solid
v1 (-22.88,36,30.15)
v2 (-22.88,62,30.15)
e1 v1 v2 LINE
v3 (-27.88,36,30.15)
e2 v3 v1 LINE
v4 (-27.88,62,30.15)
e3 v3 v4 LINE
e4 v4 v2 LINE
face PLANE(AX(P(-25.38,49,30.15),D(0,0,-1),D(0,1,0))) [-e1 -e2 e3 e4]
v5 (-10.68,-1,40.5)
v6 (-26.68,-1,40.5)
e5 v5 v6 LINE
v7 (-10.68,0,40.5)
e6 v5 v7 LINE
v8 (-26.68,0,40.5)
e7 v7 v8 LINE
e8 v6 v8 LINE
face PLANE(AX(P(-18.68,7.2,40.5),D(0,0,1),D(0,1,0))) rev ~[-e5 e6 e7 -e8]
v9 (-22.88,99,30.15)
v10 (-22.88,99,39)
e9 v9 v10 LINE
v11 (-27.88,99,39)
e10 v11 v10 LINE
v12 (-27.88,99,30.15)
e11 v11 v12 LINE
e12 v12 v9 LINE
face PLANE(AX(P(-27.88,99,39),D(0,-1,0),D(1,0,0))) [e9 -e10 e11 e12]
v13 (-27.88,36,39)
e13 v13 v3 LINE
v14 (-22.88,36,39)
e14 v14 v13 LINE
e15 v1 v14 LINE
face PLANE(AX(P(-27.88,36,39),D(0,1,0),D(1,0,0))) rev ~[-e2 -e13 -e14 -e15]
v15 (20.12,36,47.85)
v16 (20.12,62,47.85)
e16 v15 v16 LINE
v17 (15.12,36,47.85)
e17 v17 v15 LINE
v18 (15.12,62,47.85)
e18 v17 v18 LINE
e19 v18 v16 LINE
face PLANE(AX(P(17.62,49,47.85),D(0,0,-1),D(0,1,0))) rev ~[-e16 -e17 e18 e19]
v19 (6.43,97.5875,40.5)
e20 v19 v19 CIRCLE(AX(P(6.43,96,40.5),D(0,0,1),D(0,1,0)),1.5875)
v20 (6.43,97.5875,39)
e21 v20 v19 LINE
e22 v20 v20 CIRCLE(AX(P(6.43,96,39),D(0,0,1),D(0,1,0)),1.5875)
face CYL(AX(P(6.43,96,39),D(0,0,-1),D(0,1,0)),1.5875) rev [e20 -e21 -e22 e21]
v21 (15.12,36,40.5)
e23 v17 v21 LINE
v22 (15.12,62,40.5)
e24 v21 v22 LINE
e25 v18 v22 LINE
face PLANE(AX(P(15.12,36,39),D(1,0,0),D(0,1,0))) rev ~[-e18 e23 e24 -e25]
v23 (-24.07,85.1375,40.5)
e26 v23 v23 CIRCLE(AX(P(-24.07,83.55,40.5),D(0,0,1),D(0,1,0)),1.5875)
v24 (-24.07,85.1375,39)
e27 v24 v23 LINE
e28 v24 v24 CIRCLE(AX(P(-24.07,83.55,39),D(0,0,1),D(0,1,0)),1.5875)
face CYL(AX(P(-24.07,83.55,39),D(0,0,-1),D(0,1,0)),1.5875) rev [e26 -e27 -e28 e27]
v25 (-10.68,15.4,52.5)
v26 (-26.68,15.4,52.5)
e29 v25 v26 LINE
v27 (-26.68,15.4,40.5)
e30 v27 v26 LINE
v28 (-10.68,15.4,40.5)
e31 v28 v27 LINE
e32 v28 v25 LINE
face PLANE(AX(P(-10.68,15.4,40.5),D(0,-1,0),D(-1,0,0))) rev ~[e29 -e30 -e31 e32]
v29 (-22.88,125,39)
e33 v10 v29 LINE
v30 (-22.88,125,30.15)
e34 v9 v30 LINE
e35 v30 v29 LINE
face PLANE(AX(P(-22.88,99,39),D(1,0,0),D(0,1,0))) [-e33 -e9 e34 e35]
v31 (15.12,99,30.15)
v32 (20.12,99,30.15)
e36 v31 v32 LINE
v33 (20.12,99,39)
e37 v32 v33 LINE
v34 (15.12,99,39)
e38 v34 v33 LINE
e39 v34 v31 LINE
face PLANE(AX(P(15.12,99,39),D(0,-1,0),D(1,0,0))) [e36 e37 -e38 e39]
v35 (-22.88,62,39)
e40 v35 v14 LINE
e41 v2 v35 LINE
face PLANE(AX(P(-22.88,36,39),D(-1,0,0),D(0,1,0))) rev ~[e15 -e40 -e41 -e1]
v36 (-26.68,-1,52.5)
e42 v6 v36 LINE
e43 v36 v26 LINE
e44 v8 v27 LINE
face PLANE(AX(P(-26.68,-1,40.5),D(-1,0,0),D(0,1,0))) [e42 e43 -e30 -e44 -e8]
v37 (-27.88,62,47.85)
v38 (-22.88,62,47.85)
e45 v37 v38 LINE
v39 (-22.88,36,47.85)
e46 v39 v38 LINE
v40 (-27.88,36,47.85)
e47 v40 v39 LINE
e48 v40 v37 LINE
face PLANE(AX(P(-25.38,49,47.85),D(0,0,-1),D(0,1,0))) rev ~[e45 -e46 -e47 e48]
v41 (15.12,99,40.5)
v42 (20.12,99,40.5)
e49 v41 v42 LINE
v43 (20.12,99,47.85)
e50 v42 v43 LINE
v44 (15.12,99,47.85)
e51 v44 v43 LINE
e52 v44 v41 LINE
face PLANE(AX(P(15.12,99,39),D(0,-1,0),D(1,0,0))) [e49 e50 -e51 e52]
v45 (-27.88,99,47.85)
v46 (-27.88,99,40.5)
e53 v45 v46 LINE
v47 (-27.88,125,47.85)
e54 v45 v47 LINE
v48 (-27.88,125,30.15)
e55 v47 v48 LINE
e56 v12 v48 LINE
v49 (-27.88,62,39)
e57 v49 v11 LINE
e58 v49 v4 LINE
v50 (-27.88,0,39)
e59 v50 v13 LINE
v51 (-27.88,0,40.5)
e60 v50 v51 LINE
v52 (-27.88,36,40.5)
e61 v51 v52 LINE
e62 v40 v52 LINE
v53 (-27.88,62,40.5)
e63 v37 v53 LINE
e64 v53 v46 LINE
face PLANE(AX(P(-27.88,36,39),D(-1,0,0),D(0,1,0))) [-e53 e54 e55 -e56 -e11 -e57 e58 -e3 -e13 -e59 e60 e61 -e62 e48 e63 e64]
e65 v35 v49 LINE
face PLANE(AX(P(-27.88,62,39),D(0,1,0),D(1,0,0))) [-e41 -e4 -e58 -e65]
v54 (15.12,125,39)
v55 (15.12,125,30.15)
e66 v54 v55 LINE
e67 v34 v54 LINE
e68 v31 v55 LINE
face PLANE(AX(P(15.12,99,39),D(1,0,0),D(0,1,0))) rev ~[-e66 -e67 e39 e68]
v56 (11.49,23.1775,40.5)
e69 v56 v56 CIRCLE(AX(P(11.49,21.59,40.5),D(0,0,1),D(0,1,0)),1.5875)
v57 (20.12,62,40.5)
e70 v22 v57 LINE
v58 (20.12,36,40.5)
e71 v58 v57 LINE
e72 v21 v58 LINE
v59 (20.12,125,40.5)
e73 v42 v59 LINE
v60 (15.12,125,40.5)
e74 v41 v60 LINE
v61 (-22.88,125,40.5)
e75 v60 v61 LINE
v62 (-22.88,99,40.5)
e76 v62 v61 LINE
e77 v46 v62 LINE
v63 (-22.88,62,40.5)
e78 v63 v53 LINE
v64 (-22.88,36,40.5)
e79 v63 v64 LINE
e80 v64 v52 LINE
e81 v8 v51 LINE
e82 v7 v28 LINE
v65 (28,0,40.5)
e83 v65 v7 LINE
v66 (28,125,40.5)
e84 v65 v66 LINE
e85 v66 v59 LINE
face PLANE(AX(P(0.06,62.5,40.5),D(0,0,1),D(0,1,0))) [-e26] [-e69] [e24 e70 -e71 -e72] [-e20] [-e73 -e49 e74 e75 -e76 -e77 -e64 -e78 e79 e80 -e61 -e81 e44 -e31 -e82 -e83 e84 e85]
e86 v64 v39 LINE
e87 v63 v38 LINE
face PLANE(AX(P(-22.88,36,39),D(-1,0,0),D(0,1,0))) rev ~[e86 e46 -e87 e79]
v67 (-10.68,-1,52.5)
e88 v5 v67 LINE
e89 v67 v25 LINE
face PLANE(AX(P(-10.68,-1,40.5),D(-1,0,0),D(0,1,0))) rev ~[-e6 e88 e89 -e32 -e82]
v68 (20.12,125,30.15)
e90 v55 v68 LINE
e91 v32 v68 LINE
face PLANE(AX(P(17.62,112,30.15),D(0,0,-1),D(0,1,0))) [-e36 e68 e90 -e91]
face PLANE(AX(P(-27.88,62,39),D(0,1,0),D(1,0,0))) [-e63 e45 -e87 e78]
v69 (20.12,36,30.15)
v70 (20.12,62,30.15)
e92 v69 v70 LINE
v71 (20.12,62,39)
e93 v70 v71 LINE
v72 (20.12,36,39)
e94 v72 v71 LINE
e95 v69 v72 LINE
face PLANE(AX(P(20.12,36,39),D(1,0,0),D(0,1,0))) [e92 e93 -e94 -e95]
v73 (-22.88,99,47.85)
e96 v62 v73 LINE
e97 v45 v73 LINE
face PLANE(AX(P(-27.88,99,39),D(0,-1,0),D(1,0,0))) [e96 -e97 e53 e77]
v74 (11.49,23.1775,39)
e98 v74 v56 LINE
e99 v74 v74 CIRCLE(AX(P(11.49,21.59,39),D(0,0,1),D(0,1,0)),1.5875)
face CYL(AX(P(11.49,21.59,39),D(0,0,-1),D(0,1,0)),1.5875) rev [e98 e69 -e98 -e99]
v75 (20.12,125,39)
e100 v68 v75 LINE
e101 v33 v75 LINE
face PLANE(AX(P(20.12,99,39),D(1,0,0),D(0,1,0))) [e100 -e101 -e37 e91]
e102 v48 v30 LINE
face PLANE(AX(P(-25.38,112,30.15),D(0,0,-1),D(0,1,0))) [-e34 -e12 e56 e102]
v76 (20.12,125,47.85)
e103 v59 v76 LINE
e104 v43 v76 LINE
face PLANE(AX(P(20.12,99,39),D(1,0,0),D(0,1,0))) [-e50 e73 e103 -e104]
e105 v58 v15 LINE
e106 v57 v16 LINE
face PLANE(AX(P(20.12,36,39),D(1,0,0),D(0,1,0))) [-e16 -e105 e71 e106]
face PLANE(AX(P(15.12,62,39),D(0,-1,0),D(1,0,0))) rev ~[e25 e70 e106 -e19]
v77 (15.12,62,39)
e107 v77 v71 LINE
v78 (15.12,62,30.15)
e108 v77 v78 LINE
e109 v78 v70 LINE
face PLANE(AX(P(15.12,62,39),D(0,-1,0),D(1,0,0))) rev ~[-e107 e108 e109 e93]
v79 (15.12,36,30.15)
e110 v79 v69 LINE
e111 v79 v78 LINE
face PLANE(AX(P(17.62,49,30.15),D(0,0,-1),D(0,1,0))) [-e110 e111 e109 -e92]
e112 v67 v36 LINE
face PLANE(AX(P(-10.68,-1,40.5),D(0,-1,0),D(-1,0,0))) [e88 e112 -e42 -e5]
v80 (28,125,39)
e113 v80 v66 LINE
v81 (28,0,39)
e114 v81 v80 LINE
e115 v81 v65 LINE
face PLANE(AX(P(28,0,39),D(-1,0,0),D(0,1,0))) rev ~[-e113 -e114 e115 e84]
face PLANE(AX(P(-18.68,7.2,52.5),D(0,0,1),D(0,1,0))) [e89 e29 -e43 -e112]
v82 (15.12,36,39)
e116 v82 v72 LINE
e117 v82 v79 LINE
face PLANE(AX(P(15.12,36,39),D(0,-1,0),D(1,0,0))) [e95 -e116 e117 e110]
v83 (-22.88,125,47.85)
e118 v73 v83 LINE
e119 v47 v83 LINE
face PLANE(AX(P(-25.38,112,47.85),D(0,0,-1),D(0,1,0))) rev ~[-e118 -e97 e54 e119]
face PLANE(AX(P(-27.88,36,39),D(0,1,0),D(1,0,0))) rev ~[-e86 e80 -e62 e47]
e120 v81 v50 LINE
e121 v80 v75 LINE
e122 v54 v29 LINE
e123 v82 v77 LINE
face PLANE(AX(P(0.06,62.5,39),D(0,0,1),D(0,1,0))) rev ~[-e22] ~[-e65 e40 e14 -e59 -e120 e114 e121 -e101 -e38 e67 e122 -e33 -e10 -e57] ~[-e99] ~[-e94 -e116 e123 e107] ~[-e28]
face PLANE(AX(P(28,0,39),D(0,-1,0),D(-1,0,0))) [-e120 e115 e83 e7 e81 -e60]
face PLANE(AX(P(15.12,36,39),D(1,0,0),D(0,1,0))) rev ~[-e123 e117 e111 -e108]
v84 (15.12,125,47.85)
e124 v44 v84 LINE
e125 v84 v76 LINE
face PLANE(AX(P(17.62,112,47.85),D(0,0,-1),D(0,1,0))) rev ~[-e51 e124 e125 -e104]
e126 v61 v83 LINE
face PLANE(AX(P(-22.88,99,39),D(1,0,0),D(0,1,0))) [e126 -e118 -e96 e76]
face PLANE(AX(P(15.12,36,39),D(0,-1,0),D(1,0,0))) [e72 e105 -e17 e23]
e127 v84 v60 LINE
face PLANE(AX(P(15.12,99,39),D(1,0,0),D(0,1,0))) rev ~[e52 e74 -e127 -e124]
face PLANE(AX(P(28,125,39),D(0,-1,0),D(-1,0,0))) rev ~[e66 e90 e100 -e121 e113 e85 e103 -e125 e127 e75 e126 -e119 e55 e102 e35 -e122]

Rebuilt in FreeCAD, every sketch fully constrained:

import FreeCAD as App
import Part
import Sketcher

V = App.Vector
Q = App.Units.Quantity

doc = App.newDocument("Part")
body = doc.addObject("PartDesign::Body", "Body")

# Sketch on XY plane
sketch1 = doc.addObject("Sketcher::SketchObject", "Sketch")
body.addObject(sketch1)
sketch1.AttachmentSupport = (doc.XY_Plane, [""])
sketch1.MapMode = "FlatFace"
sketch1.addGeometry([
    Part.LineSegment(V(0, 55.9, 0), V(0, 0, 0)),  # 0
    Part.LineSegment(V(0, 0, 0), V(125, 0, 0)),  # 1
    Part.LineSegment(V(125, 0, 0), V(125, 55.9, 0)),  # 2
    Part.LineSegment(V(125, 55.9, 0), V(0, 55.9, 0)),  # 3
    Part.Circle(V(21.6, 16.5, 0), V(0, 0, 1), 1.6),  # 4
    Part.Circle(V(96, 21.6, 0), V(0, 0, 1), 1.6),  # 5
    Part.Circle(V(83.5, 52.1, 0), V(0, 0, 1), 1.6),  # 6
], False)
sketch1.addConstraint([
    Sketcher.Constraint("Coincident", 0, 2, 1, 1),
    Sketcher.Constraint("Coincident", 1, 2, 2, 1),
    Sketcher.Constraint("Coincident", 2, 2, 3, 1),
    Sketcher.Constraint("Coincident", 3, 2, 0, 1),
    Sketcher.Constraint("Vertical", 0),
    Sketcher.Constraint("Horizontal", 1),
    Sketcher.Constraint("Vertical", 2),
    Sketcher.Constraint("Horizontal", 3),
    Sketcher.Constraint("Coincident", 0, 2, -1, 1),
    Sketcher.Constraint("Equal", 4, 5),
    Sketcher.Constraint("Equal", 5, 6),
    Sketcher.Constraint("DistanceX", 1, 1, 1, 2, Q("125 mm")),
    Sketcher.Constraint("Diameter", 4, Q("3.175 mm")),
    Sketcher.Constraint("DistanceX", -1, 1, 5, 3, Q("96 mm")),
    Sketcher.Constraint("DistanceY", 0, 2, 0, 1, Q("55.88 mm")),
    Sketcher.Constraint("DistanceY", 5, 3, 6, 3, Q("30.5 mm")),
    Sketcher.Constraint("DistanceX", -1, 1, 4, 3, Q("21.59 mm")),
    Sketcher.Constraint("DistanceY", -1, 1, 4, 3, Q("16.51 mm")),
    Sketcher.Constraint("DistanceY", -1, 1, 5, 3, Q("21.57 mm")),
    Sketcher.Constraint("DistanceX", -1, 1, 6, 3, Q("83.55 mm")),
])
pad1 = doc.addObject("PartDesign::Pad", "Pad")
body.addObject(pad1)
pad1.Profile = sketch1
pad1.Length = 1.5

# Sketch on XY plane
sketch2 = doc.addObject("Sketcher::SketchObject", "Sketch001")
body.addObject(sketch2)
sketch2.AttachmentSupport = (doc.XY_Plane, [""])
sketch2.MapMode = "FlatFace"
sketch2.addGeometry([
    Part.LineSegment(V(36, 8, 0), V(36, 13, 0)),  # 0
    Part.LineSegment(V(36, 13, 0), V(62, 13, 0)),  # 1
    Part.LineSegment(V(62, 13, 0), V(62, 8, 0)),  # 2
    Part.LineSegment(V(62, 8, 0), V(36, 8, 0)),  # 3
    Part.LineSegment(V(99, 8, 0), V(99, 13, 0)),  # 4
    Part.LineSegment(V(99, 13, 0), V(125, 13, 0)),  # 5
    Part.LineSegment(V(125, 13, 0), V(125, 8, 0)),  # 6
    Part.LineSegment(V(125, 8, 0), V(99, 8, 0)),  # 7
    Part.LineSegment(V(99, 51, 0), V(99, 56, 0)),  # 8
    Part.LineSegment(V(99, 56, 0), V(125, 56, 0)),  # 9
    Part.LineSegment(V(125, 56, 0), V(125, 51, 0)),  # 10
    Part.LineSegment(V(125, 51, 0), V(99, 51, 0)),  # 11
    Part.LineSegment(V(36, 51, 0), V(36, 56, 0)),  # 12
    Part.LineSegment(V(36, 56, 0), V(62, 56, 0)),  # 13
    Part.LineSegment(V(62, 56, 0), V(62, 51, 0)),  # 14
    Part.LineSegment(V(62, 51, 0), V(36, 51, 0)),  # 15
], False)
sketch2.addConstraint([
    Sketcher.Constraint("Coincident", 0, 2, 1, 1),
    Sketcher.Constraint("Coincident", 1, 2, 2, 1),
    Sketcher.Constraint("Coincident", 2, 2, 3, 1),
    Sketcher.Constraint("Coincident", 3, 2, 0, 1),
    Sketcher.Constraint("Coincident", 4, 2, 5, 1),
    Sketcher.Constraint("Coincident", 5, 2, 6, 1),
    Sketcher.Constraint("Coincident", 6, 2, 7, 1),
    Sketcher.Constraint("Coincident", 7, 2, 4, 1),
    Sketcher.Constraint("Coincident", 8, 2, 9, 1),
    Sketcher.Constraint("Coincident", 9, 2, 10, 1),
    Sketcher.Constraint("Coincident", 10, 2, 11, 1),
    Sketcher.Constraint("Coincident", 11, 2, 8, 1),
    Sketcher.Constraint("Coincident", 12, 2, 13, 1),
    Sketcher.Constraint("Coincident", 13, 2, 14, 1),
    Sketcher.Constraint("Coincident", 14, 2, 15, 1),
    Sketcher.Constraint("Coincident", 15, 2, 12, 1),
    Sketcher.Constraint("Vertical", 0),
    Sketcher.Constraint("Horizontal", 1),
    Sketcher.Constraint("Vertical", 2),
    Sketcher.Constraint("Horizontal", 3),
    Sketcher.Constraint("Vertical", 4),
    Sketcher.Constraint("Horizontal", 5),
    Sketcher.Constraint("Vertical", 6),
    Sketcher.Constraint("Horizontal", 7),
    Sketcher.Constraint("Vertical", 8),
    Sketcher.Constraint("Horizontal", 9),
    Sketcher.Constraint("Vertical", 10),
    Sketcher.Constraint("Horizontal", 11),
    Sketcher.Constraint("Vertical", 12),
    Sketcher.Constraint("Horizontal", 13),
    Sketcher.Constraint("Vertical", 14),
    Sketcher.Constraint("Horizontal", 15),
    Sketcher.Constraint("Horizontal", 1, 2, 4, 2),
    Sketcher.Constraint("Horizontal", 3, 2, 6, 2),
    Sketcher.Constraint("Horizontal", 9, 2, 12, 2),
    Sketcher.Constraint("Horizontal", 11, 2, 14, 2),
    Sketcher.Constraint("Vertical", 7, 2, 8, 2),
    Sketcher.Constraint("Vertical", 6, 2, 9, 2),
    Sketcher.Constraint("Vertical", 3, 2, 12, 2),
    Sketcher.Constraint("Vertical", 2, 2, 13, 2),
    Sketcher.Constraint("Equal", 3, 5),
    Sketcher.Constraint("Equal", 6, 8),
    Sketcher.Constraint("DistanceX", 1, 1, 1, 2, Q("26 mm")),
    Sketcher.Constraint("DistanceY", 0, 1, 0, 2, Q("5 mm")),
    Sketcher.Constraint("DistanceX", -1, 1, 0, 2, Q("36 mm")),
    Sketcher.Constraint("DistanceX", -1, 1, 4, 2, Q("99 mm")),
    Sketcher.Constraint("DistanceY", 4, 2, 8, 2, Q("43 mm")),
    Sketcher.Constraint("DistanceY", -1, 1, 0, 2, Q("12.88 mm")),
])
pad2 = doc.addObject("PartDesign::Pad", "Pad001")
body.addObject(pad2)
pad2.Profile = sketch2
pad2.Length = 17.7
pad2.Midplane = True

# Sketch on XY plane
sketch3 = doc.addObject("Sketcher::SketchObject", "Sketch002")
body.addObject(sketch3)
sketch3.AttachmentSupport = (doc.XY_Plane, [""])
sketch3.MapMode = "FlatFace"
sketch3.AttachmentOffset = App.Placement(V(0, 0, 1.5), App.Rotation())
sketch3.addGeometry([
    Part.LineSegment(V(-1, 55, 0), V(-1, 39, 0)),
    Part.LineSegment(V(-1, 39, 0), V(15, 39, 0)),
    Part.LineSegment(V(15, 39, 0), V(15, 55, 0)),
    Part.LineSegment(V(15, 55, 0), V(-1, 55, 0)),
], False)
sketch3.addConstraint([
    Sketcher.Constraint("Coincident", 0, 2, 1, 1),
    Sketcher.Constraint("Coincident", 1, 2, 2, 1),
    Sketcher.Constraint("Coincident", 2, 2, 3, 1),
    Sketcher.Constraint("Coincident", 3, 2, 0, 1),
    Sketcher.Constraint("Vertical", 0),
    Sketcher.Constraint("Horizontal", 1),
    Sketcher.Constraint("Vertical", 2),
    Sketcher.Constraint("Horizontal", 3),
    Sketcher.Constraint("DistanceY", 0, 2, 0, 1, Q("16 mm")),
    Sketcher.Constraint("DistanceX", 1, 1, 1, 2, Q("16.4 mm")),
    Sketcher.Constraint("DistanceX", 0, 2, -1, 1, Q("1 mm")),
    Sketcher.Constraint("DistanceY", -1, 1, 0, 2, Q("38.68 mm")),
])
pad3 = doc.addObject("PartDesign::Pad", "Pad002")
body.addObject(pad3)
pad3.Profile = sketch3
pad3.Length = 12
body2 = doc.addObject("PartDesign::Body", "Body001")
doc.recompute()

body.Placement = App.Placement(V(28, 0, 39), App.Rotation(V(0, 0, 1), 90))
boolean = doc.addObject("PartDesign::Boolean", "Boolean")
body2.addObject(boolean)
boolean.Type = "Fuse"
boolean.addObjects([body])

doc.recompute()
